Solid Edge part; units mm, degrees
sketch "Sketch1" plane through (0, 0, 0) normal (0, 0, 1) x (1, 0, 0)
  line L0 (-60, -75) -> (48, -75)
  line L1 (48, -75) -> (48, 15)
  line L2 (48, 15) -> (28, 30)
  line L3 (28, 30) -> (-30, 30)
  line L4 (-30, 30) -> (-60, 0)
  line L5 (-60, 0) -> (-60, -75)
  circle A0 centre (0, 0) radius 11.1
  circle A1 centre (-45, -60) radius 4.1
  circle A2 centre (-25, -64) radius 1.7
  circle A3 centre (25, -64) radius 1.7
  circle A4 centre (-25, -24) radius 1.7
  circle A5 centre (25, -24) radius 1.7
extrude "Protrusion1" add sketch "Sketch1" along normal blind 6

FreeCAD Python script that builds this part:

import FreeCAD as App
import Part
import Sketcher
Q = App.Units.Quantity


def add_polygon(sketch, points):
    """Adds a closed chain of lines whose ends are joined by coincident constraints."""
    first, n = sketch.GeometryCount, len(points)
    for a, b in zip(points, points[1:] + points[:1]):
        sketch.addGeometry(Part.LineSegment(App.Vector(*a, 0), App.Vector(*b, 0)), False)
    for i in range(n):
        sketch.addConstraint(Sketcher.Constraint("Coincident", first + i, 2, first + (i + 1) % n, 1))

doc = App.newDocument("Part")
body = doc.addObject("PartDesign::Body", "Body")

# Sketch on XY plane
sketch1 = doc.addObject("Sketcher::SketchObject", "Sketch")
body.addObject(sketch1)
sketch1.AttachmentSupport = (doc.XY_Plane, [""])
sketch1.MapMode = "FlatFace"
add_polygon(sketch1, [(-60, 0), (-60, -75), (48, -75), (48, 15), (28, 30), (-30, 30)])  # lines 0-5
sketch1.addGeometry(Part.Circle(App.Vector(-45, -60, 0), App.Vector(0, 0, 1), 4.1), False)  # 6
sketch1.addGeometry(Part.Circle(App.Vector(-25, -64, 0), App.Vector(0, 0, 1), 1.7), False)  # 7
sketch1.addGeometry(Part.Circle(App.Vector(-25, -24, 0), App.Vector(0, 0, 1), 1.7), False)  # 8
sketch1.addGeometry(Part.Circle(App.Vector(25, -64, 0), App.Vector(0, 0, 1), 1.7), False)  # 9
sketch1.addGeometry(Part.Circle(App.Vector(25, -24, 0), App.Vector(0, 0, 1), 1.7), False)  # 10
sketch1.addGeometry(Part.Circle(App.Vector(0, 0, 0), App.Vector(0, 0, 1), 11.1), False)  # 11
sketch1.addConstraint(Sketcher.Constraint("Vertical", 0))
sketch1.addConstraint(Sketcher.Constraint("Horizontal", 1))
sketch1.addConstraint(Sketcher.Constraint("Vertical", 2))
sketch1.addConstraint(Sketcher.Constraint("Horizontal", 4))
sketch1.addConstraint(Sketcher.Constraint("Coincident", 11, 3, -1, 1))
sketch1.addConstraint(Sketcher.Constraint("Equal", 7, 8))
sketch1.addConstraint(Sketcher.Constraint("Equal", 8, 9))
sketch1.addConstraint(Sketcher.Constraint("Equal", 9, 10))
sketch1.addConstraint(Sketcher.Constraint("Symmetric", 7, 3, 9, 3, -2))
sketch1.addConstraint(Sketcher.Constraint("Symmetric", 8, 3, 10, 3, -2))
sketch1.addConstraint(Sketcher.Constraint("PointOnObject", 5, 2, -1))
sketch1.addConstraint(Sketcher.Constraint("Vertical", 7, 3, 8, 3))
sketch1.addConstraint(Sketcher.Constraint("Diameter", 6, Q("8.2 mm")))
sketch1.addConstraint(Sketcher.Constraint("Diameter", 7, Q("3.4 mm")))
sketch1.addConstraint(Sketcher.Constraint("Diameter", 11, Q("22.2 mm")))
sketch1.addConstraint(Sketcher.Constraint("DistanceX", 1, 1, 1, 2, Q("108 mm")))
sketch1.addConstraint(Sketcher.Constraint("DistanceX", 4, 2, 4, 1, Q("58 mm")))
sketch1.addConstraint(Sketcher.Constraint("DistanceY", 0, 2, 0, 1, Q("75 mm")))
sketch1.addConstraint(Sketcher.Constraint("DistanceY", 2, 1, 2, 2, Q("90 mm")))
sketch1.addConstraint(Sketcher.Constraint("Angle", 5, Q("-135 deg")))
sketch1.addConstraint(Sketcher.Constraint("Distance", 3, Q("25 mm")))
sketch1.addConstraint(Sketcher.Constraint("DistanceX", 6, 3, -1, 1, Q("45 mm")))
sketch1.addConstraint(Sketcher.Constraint("DistanceY", 6, 3, -1, 1, Q("60 mm")))
sketch1.addConstraint(Sketcher.Constraint("DistanceX", 7, 3, -1, 1, Q("25 mm")))
sketch1.addConstraint(Sketcher.Constraint("DistanceY", 7, 3, -1, 1, Q("64 mm")))
sketch1.addConstraint(Sketcher.Constraint("DistanceY", 8, 3, -1, 1, Q("24 mm")))
sketch1.addConstraint(Sketcher.Constraint("DistanceX", 0, 2, -1, 1, Q("60 mm")))
pad1 = doc.addObject("PartDesign::Pad", "Pad")
body.addObject(pad1)
pad1.Profile = sketch1
pad1.Length = 6

doc.recompute()
